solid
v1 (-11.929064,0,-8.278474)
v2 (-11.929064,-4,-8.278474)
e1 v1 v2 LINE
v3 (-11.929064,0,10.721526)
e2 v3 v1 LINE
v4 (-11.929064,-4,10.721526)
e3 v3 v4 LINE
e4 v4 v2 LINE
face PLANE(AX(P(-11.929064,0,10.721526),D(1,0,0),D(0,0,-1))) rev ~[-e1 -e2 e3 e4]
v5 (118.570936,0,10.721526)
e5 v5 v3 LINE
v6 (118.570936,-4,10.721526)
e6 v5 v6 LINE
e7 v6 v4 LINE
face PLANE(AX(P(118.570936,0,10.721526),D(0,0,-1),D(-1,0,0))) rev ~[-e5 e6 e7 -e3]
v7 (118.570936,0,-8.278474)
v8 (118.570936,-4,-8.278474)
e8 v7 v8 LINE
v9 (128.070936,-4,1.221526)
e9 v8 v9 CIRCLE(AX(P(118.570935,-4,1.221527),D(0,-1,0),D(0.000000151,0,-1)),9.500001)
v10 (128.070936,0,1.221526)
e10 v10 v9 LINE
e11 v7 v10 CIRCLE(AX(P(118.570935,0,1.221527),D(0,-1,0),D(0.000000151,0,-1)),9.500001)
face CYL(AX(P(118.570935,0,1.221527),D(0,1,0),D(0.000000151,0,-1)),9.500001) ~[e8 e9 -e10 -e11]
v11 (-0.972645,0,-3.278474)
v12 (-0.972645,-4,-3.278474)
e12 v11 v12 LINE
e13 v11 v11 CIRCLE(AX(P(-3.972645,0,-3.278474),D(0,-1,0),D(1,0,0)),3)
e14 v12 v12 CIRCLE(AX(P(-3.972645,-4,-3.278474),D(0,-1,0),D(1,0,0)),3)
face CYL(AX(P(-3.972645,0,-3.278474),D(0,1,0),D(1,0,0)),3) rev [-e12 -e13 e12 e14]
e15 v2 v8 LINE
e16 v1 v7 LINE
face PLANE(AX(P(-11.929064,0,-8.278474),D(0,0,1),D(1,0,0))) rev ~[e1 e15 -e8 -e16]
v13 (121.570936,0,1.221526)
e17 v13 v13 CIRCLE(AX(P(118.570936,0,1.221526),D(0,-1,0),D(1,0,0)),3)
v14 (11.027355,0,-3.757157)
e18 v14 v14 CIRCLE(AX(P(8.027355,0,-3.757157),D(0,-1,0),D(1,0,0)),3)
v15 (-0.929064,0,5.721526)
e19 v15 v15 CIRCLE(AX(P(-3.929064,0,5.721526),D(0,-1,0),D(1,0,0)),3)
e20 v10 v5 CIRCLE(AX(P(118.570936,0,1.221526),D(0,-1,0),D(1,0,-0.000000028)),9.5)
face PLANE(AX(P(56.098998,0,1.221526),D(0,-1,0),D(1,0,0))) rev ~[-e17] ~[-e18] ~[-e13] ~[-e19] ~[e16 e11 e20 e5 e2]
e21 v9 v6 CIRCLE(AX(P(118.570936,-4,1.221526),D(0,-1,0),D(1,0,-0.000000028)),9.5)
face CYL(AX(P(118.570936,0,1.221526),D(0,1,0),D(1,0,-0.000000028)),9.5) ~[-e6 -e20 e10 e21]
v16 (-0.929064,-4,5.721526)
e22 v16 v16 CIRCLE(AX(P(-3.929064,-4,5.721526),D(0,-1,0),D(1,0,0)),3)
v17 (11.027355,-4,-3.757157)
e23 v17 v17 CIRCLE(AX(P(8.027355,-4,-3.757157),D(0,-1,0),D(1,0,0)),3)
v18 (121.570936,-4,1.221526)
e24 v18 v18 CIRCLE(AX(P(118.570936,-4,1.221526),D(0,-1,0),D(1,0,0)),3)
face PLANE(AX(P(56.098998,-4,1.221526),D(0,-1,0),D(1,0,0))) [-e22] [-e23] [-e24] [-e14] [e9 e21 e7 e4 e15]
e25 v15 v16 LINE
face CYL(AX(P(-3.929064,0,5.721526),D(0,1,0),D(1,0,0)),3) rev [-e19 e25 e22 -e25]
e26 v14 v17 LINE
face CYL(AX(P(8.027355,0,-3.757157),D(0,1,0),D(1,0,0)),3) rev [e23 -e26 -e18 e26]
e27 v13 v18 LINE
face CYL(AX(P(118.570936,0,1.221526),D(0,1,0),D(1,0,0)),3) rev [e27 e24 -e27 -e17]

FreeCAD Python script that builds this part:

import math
import FreeCAD as App
import Part
import Sketcher
from FreeCAD import Vector
Q = App.Units.Quantity

doc = App.newDocument("Part")
body = doc.addObject("PartDesign::Body", "Body")

# Sketch on XZ plane
sketch1 = body.newObject("Sketcher::SketchObject", "Sketch")
sketch1.AttachmentSupport = (doc.getObject("XZ_Plane"), [""])
sketch1.MapMode = "FlatFace"
sketch1.addGeometry([
    Part.LineSegment(Vector(-11.929064, 10.721526, 0), Vector(-11.929064, -8.278474, 0)),  # 0
    Part.LineSegment(Vector(-11.929064, -8.278474, 0), Vector(118.570936, -8.278474, 0)),  # 1
    Part.ArcOfCircle(Part.Circle(Vector(118.570935, 1.221527, 0), Vector(0, 0, 1), 9.500001), math.radians(-89.999991), math.radians(-0.000009)),  # 2
    Part.ArcOfCircle(Part.Circle(Vector(118.570936, 1.221526, 0), Vector(0, 0, 1), 9.5), math.radians(-0.000002), math.radians(90.000002)),  # 3
    Part.LineSegment(Vector(118.570936, 10.721526, 0), Vector(-11.929064, 10.721526, 0)),  # 4
    Part.Circle(Vector(-3.972645, -3.278474, 0), Vector(0, 0, 1), 3),  # 5
    Part.Circle(Vector(8.027355, -3.757157, 0), Vector(0, 0, 1), 3),  # 6
    Part.Circle(Vector(-3.929064, 5.721526, 0), Vector(0, 0, 1), 3),  # 7
    Part.Circle(Vector(118.570936, 1.221526, 0), Vector(0, 0, 1), 3),  # 8
], False)
sketch1.addConstraint([
    Sketcher.Constraint("Coincident", 0, 2, 1, 1),
    Sketcher.Constraint("Tangent", 1, 2, 2, 1),
    Sketcher.Constraint("Tangent", 2, 2, 3, 1),
    Sketcher.Constraint("Tangent", 3, 2, 4, 1),
    Sketcher.Constraint("Coincident", 4, 2, 0, 1),
    Sketcher.Constraint("Vertical", 0),
    Sketcher.Constraint("Horizontal", 1),
    Sketcher.Constraint("Horizontal", 4),
    Sketcher.Constraint("Coincident", 8, 3, 2, 3),
    Sketcher.Constraint("Equal", 2, 3),
    Sketcher.Constraint("Equal", 5, 6),
    Sketcher.Constraint("Equal", 6, 7),
    Sketcher.Constraint("Equal", 7, 8),
    Sketcher.Constraint("Horizontal", 8, 3, 2, 2),
    Sketcher.Constraint("Diameter", 5, Q("6 mm")),
    Sketcher.Constraint("Radius", 2, Q("9.500001 mm")),
    Sketcher.Constraint("DistanceX", 1, 1, 1, 2, Q("130.5 mm")),
    Sketcher.Constraint("DistanceX", 5, 3, 6, 3, Q("12 mm")),
    Sketcher.Constraint("DistanceY", 5, 3, 7, 3, Q("9 mm")),
    Sketcher.Constraint("DistanceY", 0, 2, 5, 3, Q("5 mm")),
    Sketcher.Constraint("DistanceX", 0, 2, 7, 3, Q("8 mm")),
    Sketcher.Constraint("DistanceX", 5, 3, 2, 3, Q("122.54358 mm")),
    Sketcher.Constraint("DistanceX", -1, 1, 2, 3, Q("118.570935 mm")),
    Sketcher.Constraint("DistanceY", -1, 1, 2, 3, Q("1.221527 mm")),
    Sketcher.Constraint("DistanceY", 6, 3, -1, 1, Q("3.757157 mm")),
])
pad1 = body.newObject("PartDesign::Pad", "Pad")
pad1.Profile = sketch1
pad1.Length = 4

doc.recompute()
